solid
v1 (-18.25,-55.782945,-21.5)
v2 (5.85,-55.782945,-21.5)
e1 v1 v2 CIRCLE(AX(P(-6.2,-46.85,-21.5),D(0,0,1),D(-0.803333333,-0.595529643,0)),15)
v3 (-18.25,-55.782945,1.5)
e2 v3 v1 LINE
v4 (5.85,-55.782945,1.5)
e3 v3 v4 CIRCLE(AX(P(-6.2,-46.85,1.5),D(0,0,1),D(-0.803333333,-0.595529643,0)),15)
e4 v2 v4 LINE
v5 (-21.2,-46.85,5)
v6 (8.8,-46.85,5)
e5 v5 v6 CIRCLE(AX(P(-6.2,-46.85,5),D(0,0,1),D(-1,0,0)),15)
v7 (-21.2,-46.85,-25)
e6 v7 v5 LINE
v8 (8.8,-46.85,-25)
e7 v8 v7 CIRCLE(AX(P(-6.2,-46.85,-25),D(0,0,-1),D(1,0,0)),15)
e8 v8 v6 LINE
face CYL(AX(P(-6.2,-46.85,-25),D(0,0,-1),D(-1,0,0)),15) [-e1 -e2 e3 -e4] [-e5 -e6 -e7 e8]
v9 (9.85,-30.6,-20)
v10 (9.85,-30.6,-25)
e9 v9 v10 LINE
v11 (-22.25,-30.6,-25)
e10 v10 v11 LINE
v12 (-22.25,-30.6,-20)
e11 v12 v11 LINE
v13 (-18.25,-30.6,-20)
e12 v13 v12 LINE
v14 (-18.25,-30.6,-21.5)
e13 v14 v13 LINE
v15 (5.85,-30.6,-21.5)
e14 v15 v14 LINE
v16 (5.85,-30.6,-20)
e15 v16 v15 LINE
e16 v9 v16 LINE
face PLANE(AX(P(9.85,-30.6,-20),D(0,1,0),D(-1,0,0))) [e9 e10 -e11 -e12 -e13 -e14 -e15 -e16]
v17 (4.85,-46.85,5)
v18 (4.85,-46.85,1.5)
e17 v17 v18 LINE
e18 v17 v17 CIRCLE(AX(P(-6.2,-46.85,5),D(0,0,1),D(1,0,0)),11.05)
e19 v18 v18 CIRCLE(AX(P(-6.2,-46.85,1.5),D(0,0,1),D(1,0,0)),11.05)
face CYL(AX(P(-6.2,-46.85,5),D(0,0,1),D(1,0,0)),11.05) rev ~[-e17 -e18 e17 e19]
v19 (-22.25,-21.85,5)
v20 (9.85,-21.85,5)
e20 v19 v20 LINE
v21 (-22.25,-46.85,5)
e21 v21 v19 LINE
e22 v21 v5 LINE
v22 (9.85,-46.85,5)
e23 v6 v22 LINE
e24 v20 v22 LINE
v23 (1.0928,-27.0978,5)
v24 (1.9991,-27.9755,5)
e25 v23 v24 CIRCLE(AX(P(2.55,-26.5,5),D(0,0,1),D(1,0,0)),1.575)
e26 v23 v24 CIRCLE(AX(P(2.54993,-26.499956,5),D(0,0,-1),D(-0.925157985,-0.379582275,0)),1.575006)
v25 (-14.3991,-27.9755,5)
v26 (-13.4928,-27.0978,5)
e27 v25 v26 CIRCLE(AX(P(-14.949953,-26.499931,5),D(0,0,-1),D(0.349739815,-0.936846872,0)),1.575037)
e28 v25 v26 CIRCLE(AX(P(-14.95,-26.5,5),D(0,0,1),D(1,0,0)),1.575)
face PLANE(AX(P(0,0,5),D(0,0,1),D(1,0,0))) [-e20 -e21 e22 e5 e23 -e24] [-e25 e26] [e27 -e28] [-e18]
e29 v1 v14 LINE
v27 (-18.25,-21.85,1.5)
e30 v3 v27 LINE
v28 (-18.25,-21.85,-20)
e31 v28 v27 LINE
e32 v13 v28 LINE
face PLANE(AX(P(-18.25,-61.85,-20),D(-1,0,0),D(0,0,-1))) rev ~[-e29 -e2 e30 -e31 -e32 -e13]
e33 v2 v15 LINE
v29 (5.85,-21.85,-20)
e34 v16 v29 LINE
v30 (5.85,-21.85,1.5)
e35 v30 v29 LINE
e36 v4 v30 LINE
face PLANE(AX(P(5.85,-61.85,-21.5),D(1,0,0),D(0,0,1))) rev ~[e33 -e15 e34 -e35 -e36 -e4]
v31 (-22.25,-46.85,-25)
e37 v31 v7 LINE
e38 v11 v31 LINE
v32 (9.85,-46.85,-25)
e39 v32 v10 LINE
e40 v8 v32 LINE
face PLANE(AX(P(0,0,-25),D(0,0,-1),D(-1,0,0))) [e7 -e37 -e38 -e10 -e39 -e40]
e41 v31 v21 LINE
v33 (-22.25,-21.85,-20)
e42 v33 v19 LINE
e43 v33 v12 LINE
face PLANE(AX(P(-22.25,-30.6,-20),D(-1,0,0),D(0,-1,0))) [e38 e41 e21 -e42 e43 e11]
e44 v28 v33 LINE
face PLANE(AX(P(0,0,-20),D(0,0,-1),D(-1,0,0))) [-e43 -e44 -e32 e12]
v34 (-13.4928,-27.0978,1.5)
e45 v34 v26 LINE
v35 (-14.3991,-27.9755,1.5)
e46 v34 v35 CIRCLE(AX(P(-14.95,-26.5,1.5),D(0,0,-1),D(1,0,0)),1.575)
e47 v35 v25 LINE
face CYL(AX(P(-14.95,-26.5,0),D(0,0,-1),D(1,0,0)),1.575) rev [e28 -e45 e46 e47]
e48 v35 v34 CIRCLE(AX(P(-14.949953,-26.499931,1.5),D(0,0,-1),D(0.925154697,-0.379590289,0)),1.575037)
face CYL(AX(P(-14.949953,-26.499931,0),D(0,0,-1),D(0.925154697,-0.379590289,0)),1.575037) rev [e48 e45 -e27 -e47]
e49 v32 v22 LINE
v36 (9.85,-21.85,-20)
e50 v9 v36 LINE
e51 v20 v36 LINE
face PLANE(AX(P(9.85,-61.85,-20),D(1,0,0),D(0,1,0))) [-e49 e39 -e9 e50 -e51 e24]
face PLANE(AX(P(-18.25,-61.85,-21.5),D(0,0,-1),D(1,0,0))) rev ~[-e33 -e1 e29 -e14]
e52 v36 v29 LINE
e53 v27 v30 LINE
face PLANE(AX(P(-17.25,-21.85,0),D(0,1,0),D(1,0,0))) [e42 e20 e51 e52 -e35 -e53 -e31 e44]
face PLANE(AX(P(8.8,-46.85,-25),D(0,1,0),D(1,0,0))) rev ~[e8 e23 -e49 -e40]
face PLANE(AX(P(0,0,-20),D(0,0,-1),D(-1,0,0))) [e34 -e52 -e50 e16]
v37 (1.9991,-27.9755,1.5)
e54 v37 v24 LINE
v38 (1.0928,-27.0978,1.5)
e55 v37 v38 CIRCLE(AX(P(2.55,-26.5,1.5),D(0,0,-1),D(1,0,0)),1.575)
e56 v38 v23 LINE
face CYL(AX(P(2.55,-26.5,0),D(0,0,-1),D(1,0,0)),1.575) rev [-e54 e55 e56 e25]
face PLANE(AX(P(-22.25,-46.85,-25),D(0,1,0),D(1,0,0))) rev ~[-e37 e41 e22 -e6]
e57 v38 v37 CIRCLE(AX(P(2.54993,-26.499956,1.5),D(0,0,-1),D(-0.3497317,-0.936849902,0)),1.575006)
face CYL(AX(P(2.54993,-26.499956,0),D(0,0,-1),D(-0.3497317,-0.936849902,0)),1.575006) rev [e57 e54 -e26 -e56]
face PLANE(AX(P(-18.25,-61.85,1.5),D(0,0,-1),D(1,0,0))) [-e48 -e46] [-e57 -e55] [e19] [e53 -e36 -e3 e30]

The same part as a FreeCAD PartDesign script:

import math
import FreeCAD as App
import Part
import Sketcher
from FreeCAD import Vector
Q = App.Units.Quantity


def add_polygon(sketch, points):
    """Adds a closed chain of lines whose ends are joined by coincident constraints."""
    first, n = sketch.GeometryCount, len(points)
    for a, b in zip(points, points[1:] + points[:1]):
        sketch.addGeometry(Part.LineSegment(App.Vector(*a, 0), App.Vector(*b, 0)), False)
    for i in range(n):
        sketch.addConstraint(Sketcher.Constraint("Coincident", first + i, 2, first + (i + 1) % n, 1))

doc = App.newDocument("Part")
body = doc.addObject("PartDesign::Body", "Body")

sketch1 = body.newObject("Sketcher::SketchObject", "Sketch")
sketch1.AttachmentSupport = (doc.getObject("XY_Plane"), [""])
sketch1.MapMode = "FlatFace"
add_polygon(sketch1, [(-22.2, -21.9), (-22.2, -61.9), (9.8, -61.9), (9.8, -21.9)])
sketch1.addGeometry(Part.ArcOfCircle(Part.Circle(Vector(-14.9, -26.5, 0), Vector(0, 0, 1), 1.6), math.radians(-70), math.radians(-22)), False)
sketch1.addGeometry(Part.ArcOfCircle(Part.Circle(Vector(-14.9, -26.5, 0), Vector(0, 0, 1), 1.6), math.radians(-22), math.radians(290)), False)
sketch1.addGeometry(Part.ArcOfCircle(Part.Circle(Vector(2.5, -26.5, 0), Vector(0, 0, 1), 1.6), math.radians(-158), math.radians(-110)), False)
sketch1.addGeometry(Part.ArcOfCircle(Part.Circle(Vector(2.5, -26.5, 0), Vector(0, 0, 1), 1.6), math.radians(-110), math.radians(202)), False)
sketch1.addConstraint([
    Sketcher.Constraint("Tangent", 4, 1, 5, 2),
    Sketcher.Constraint("Coincident", 5, 1, 4, 2),
    Sketcher.Constraint("Tangent", 6, 1, 7, 2),
    Sketcher.Constraint("Coincident", 7, 1, 6, 2),
    Sketcher.Constraint("Vertical", 0),
    Sketcher.Constraint("Horizontal", 1),
    Sketcher.Constraint("Vertical", 2),
    Sketcher.Constraint("Horizontal", 3),
    Sketcher.Constraint("Equal", 5, 6),
    Sketcher.Constraint("Horizontal", 5, 3, 6, 3),
    Sketcher.Constraint("Horizontal", 5, 1, 6, 1),
    Sketcher.Constraint("Horizontal", 4, 1, 7, 1),
    Sketcher.Constraint("DistanceY", 0, 2, 0, 1, Q("40 mm")),
    Sketcher.Constraint("DistanceX", 1, 1, 1, 2, Q("32.1 mm")),
    Sketcher.Constraint("Radius", 4, Q("1.575 mm")),
    Sketcher.Constraint("DistanceY", 4, 3, -1, 1, Q("26.5 mm")),
    Sketcher.Constraint("DistanceX", 4, 3, 6, 3, Q("17.5 mm")),
    Sketcher.Constraint("DistanceX", 0, 2, 4, 3, Q("7.3 mm")),
    Sketcher.Constraint("DistanceX", 4, 3, -1, 1, Q("14.95 mm")),
    Sketcher.Constraint("DistanceY", 0, 2, -1, 1, Q("61.85 mm")),
    Sketcher.Constraint("DistanceX", 4, 1, -1, 1, Q("14.399 mm")),
    Sketcher.Constraint("DistanceX", 4, 1, 6, 1, Q("15.492 mm")),
])
pad1 = body.newObject("PartDesign::Pad", "Pad")
pad1.Profile = sketch1
pad1.Length = 5

sketch2 = body.newObject("Sketcher::SketchObject", "Sketch001")
sketch2.AttachmentSupport = (doc.getObject("XY_Plane"), [""])
sketch2.MapMode = "FlatFace"
add_polygon(sketch2, [(5.8, -61.9), (5.8, -21.9), (9.8, -21.9), (9.8, -61.9)])
add_polygon(sketch2, [(-22.2, -61.9), (-22.2, -21.9), (-18.2, -21.9), (-18.2, -61.9)])
sketch2.addConstraint([
    Sketcher.Constraint("Vertical", 0),
    Sketcher.Constraint("Horizontal", 1),
    Sketcher.Constraint("Vertical", 2),
    Sketcher.Constraint("Horizontal", 3),
    Sketcher.Constraint("Vertical", 4),
    Sketcher.Constraint("Horizontal", 5),
    Sketcher.Constraint("Vertical", 6),
    Sketcher.Constraint("Horizontal", 7),
    Sketcher.Constraint("Horizontal", 1, 2, 4, 2),
    Sketcher.Constraint("Horizontal", 3, 2, 6, 2),
    Sketcher.Constraint("Equal", 3, 5),
    Sketcher.Constraint("DistanceX", 1, 1, 1, 2, Q("4 mm")),
    Sketcher.Constraint("DistanceY", 0, 1, 0, 2, Q("40 mm")),
    Sketcher.Constraint("DistanceX", 4, 2, 0, 2, Q("28.1 mm")),
    Sketcher.Constraint("DistanceX", -1, 1, 0, 2, Q("5.85 mm")),
    Sketcher.Constraint("DistanceY", 0, 2, -1, 1, Q("21.85 mm")),
])
pad2 = body.newObject("PartDesign::Pad", "Pad001")
pad2.Profile = sketch2
pad2.Length = 20
pad2.Reversed = True

sketch3 = body.newObject("Sketcher::SketchObject", "Sketch002")
sketch3.AttachmentSupport = (doc.getObject("XY_Plane"), [""])
sketch3.MapMode = "FlatFace"
sketch3.AttachmentOffset = App.Placement(Vector(0, 0, -20), App.Rotation())
add_polygon(sketch3, [(-22, -31), (10, -31), (10, -62), (-22, -62)])
sketch3.addConstraint([
    Sketcher.Constraint("Horizontal", 0),
    Sketcher.Constraint("Vertical", 1),
    Sketcher.Constraint("Horizontal", 2),
    Sketcher.Constraint("Vertical", 3),
    Sketcher.Constraint("DistanceX", 0, 1, 0, 2, Q("32.1 mm")),
    Sketcher.Constraint("DistanceY", 1, 2, 1, 1, Q("31.25 mm")),
    Sketcher.Constraint("DistanceY", 0, 2, -1, 1, Q("30.6 mm")),
    Sketcher.Constraint("DistanceX", -1, 1, 0, 2, Q("9.85 mm")),
])
pad3 = body.newObject("PartDesign::Pad", "Pad002")
pad3.Profile = sketch3
pad3.Length = 5
pad3.Reversed = True

sketch4 = body.newObject("Sketcher::SketchObject", "Sketch003")
sketch4.AttachmentSupport = (doc.getObject("XY_Plane"), [""])
sketch4.MapMode = "FlatFace"
sketch4.AttachmentOffset = App.Placement(Vector(0, 0, 5), App.Rotation())
sketch4.addGeometry(Part.Circle(Vector(-6, -47, 0), Vector(0, 0, 1), 11), False)
sketch4.addConstraint([
    Sketcher.Constraint("Diameter", 0, Q("22.1 mm")),
    Sketcher.Constraint("DistanceX", 0, 3, -1, 1, Q("6.2 mm")),
    Sketcher.Constraint("DistanceY", 0, 3, -1, 1, Q("46.85 mm")),
])
pocket1 = body.newObject("PartDesign::Pocket", "Pocket")
pocket1.Profile = sketch4
pocket1.Length = 5

sketch5 = body.newObject("Sketcher::SketchObject", "Sketch004")
sketch5.AttachmentSupport = (doc.getObject("XY_Plane"), [""])
sketch5.MapMode = "FlatFace"
sketch5.AttachmentOffset = App.Placement(Vector(0, 0, -25), App.Rotation())
sketch5.addGeometry([
    Part.LineSegment(Vector(-22.2, -46.9, 0), Vector(-21.2, -46.9, 0)),
    Part.ArcOfCircle(Part.Circle(Vector(-6.2, -46.9, 0), Vector(0, 0, 1), 15), math.radians(180), math.radians(270)),
    Part.LineSegment(Vector(-6.2, -61.9, 0), Vector(-22.2, -61.9, 0)),
    Part.LineSegment(Vector(-22.2, -61.9, 0), Vector(-22.2, -46.9, 0)),
    Part.ArcOfCircle(Part.Circle(Vector(-6.2, -46.9, 0), Vector(0, 0, 1), 15), math.radians(-90), math.radians(0)),
    Part.LineSegment(Vector(8.8, -46.9, 0), Vector(9.8, -46.9, 0)),
    Part.LineSegment(Vector(9.8, -46.9, 0), Vector(9.8, -61.9, 0)),
    Part.LineSegment(Vector(9.8, -61.9, 0), Vector(-6.2, -61.9, 0)),
], False)
sketch5.addConstraint([
    Sketcher.Constraint("Coincident", 0, 2, 1, 1),
    Sketcher.Constraint("Tangent", 1, 2, 2, 1),
    Sketcher.Constraint("Coincident", 2, 2, 3, 1),
    Sketcher.Constraint("Coincident", 3, 2, 0, 1),
    Sketcher.Constraint("Coincident", 4, 2, 5, 1),
    Sketcher.Constraint("Coincident", 5, 2, 6, 1),
    Sketcher.Constraint("Coincident", 6, 2, 7, 1),
    Sketcher.Constraint("Tangent", 7, 2, 4, 1),
    Sketcher.Constraint("Horizontal", 0),
    Sketcher.Constraint("Horizontal", 2),
    Sketcher.Constraint("Vertical", 3),
    Sketcher.Constraint("Horizontal", 5),
    Sketcher.Constraint("Vertical", 6),
    Sketcher.Constraint("Horizontal", 7),
    Sketcher.Constraint("Coincident", 4, 3, 1, 3),
    Sketcher.Constraint("Equal", 1, 4),
    Sketcher.Constraint("Horizontal", 4, 3, 0, 2),
    Sketcher.Constraint("Horizontal", 3, 2, 4, 2),
    Sketcher.Constraint("Equal", 0, 5),
    Sketcher.Constraint("Radius", 1, Q("15 mm")),
    Sketcher.Constraint("DistanceX", 0, 1, 0, 2, Q("1.05 mm")),
    Sketcher.Constraint("DistanceX", 1, 3, -1, 1, Q("6.2 mm")),
    Sketcher.Constraint("DistanceY", 1, 3, -1, 1, Q("46.85 mm")),
])
pocket2 = body.newObject("PartDesign::Pocket", "Pocket001")
pocket2.Profile = sketch5
pocket2.Length = 30
pocket2.Reversed = True

sketch6 = body.newObject("Sketcher::SketchObject", "Sketch005")
sketch6.AttachmentSupport = (doc.getObject("XZ_Plane"), [""])
sketch6.MapMode = "FlatFace"
sketch6.AttachmentOffset = App.Placement(Vector(0, 0, 61.85), App.Rotation())
add_polygon(sketch6, [(-18.2, -21.5), (-18.2, -20), (5.8, -20), (5.8, -21.5)])
add_polygon(sketch6, [(5.8, 0), (-18.2, 0), (-18.2, 1.5), (5.8, 1.5)])
sketch6.addConstraint([
    Sketcher.Constraint("Vertical", 0),
    Sketcher.Constraint("Horizontal", 1),
    Sketcher.Constraint("Vertical", 2),
    Sketcher.Constraint("Horizontal", 3),
    Sketcher.Constraint("Horizontal", 4),
    Sketcher.Constraint("Vertical", 5),
    Sketcher.Constraint("Horizontal", 6),
    Sketcher.Constraint("Vertical", 7),
    Sketcher.Constraint("PointOnObject", 4, 2, -1),
    Sketcher.Constraint("Vertical", 3, 2, 4, 2),
    Sketcher.Constraint("Vertical", 2, 2, 6, 2),
    Sketcher.Constraint("Equal", 2, 5),
    Sketcher.Constraint("DistanceY", 0, 1, 0, 2, Q("1.5 mm")),
    Sketcher.Constraint("DistanceX", 1, 1, 1, 2, Q("24.1 mm")),
    Sketcher.Constraint("DistanceY", 0, 2, -1, 1, Q("20 mm")),
    Sketcher.Constraint("DistanceX", 0, 2, -1, 1, Q("18.25 mm")),
])
pocket3 = body.newObject("PartDesign::Pocket", "Pocket002")
pocket3.Profile = sketch6
pocket3.Length = 40

doc.recompute()
